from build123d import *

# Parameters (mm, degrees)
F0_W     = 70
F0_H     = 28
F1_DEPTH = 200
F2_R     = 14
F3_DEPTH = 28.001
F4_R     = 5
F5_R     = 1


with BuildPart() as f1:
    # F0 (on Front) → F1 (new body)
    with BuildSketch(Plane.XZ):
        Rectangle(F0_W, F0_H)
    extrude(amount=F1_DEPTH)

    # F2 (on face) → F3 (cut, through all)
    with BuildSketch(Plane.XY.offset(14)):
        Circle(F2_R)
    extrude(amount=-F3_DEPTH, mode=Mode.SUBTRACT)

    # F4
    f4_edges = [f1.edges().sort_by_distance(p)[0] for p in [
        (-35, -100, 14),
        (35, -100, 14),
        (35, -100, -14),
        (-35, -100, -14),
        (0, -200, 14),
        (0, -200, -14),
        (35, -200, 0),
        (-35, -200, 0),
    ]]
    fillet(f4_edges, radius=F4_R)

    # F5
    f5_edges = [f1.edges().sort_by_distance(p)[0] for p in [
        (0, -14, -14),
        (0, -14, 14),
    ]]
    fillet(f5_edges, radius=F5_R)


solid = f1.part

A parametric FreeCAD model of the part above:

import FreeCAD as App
import Part
import Sketcher

V = App.Vector


def edges_at(feature, points):
    """Names of the edges that pass closest to the given points."""
    edges = feature.Shape.Edges
    near = lambda p: min(range(len(edges)), key=lambda i: edges[i].distToShape(Part.Vertex(*p))[0])
    return sorted({f"Edge{near(p) + 1}" for p in points})


def add_polygon(sketch, points):
    """Adds a closed chain of lines whose ends are joined by coincident constraints."""
    first, n = sketch.GeometryCount, len(points)
    for a, b in zip(points, points[1:] + points[:1]):
        sketch.addGeometry(Part.LineSegment(App.Vector(*a, 0), App.Vector(*b, 0)), False)
    for i in range(n):
        sketch.addConstraint(Sketcher.Constraint("Coincident", first + i, 2, first + (i + 1) % n, 1))

doc = App.newDocument("Part")
body = doc.addObject("PartDesign::Body", "Body")

# Sketch on XZ plane
sketch1 = body.newObject("Sketcher::SketchObject", "Sketch")
sketch1.AttachmentSupport = (doc.getObject("XZ_Plane"), [""])
sketch1.MapMode = "FlatFace"
add_polygon(sketch1, [(-35, 14), (-35, -14), (35, -14), (35, 14)])  # lines 0-3
sketch1.addConstraint(Sketcher.Constraint("Vertical", 0))
sketch1.addConstraint(Sketcher.Constraint("Horizontal", 1))
sketch1.addConstraint(Sketcher.Constraint("Vertical", 2))
sketch1.addConstraint(Sketcher.Constraint("Horizontal", 3))
sketch1.addConstraint(Sketcher.Constraint("Symmetric", 0, 2, 2, 2, -1, 1))
sketch1.addConstraint(Sketcher.Constraint("DistanceX", 1, 1, 1, 2, 70.0))
sketch1.addConstraint(Sketcher.Constraint("DistanceY", 0, 2, 0, 1, 28.0))
pad1 = body.newObject("PartDesign::Pad", "Pad")
pad1.Profile = sketch1
pad1.Length = 200

# Sketch on XY plane
sketch2 = body.newObject("Sketcher::SketchObject", "Sketch001")
sketch2.AttachmentSupport = (doc.getObject("XY_Plane"), [""])
sketch2.MapMode = "FlatFace"
sketch2.AttachmentOffset = App.Placement(V(0, 0, 14), App.Rotation())
sketch2.addGeometry(Part.Circle(V(0, 0, 0), V(0, 0, 1), 14), False)
sketch2.addConstraint(Sketcher.Constraint("Coincident", 0, 3, -1, 1))
sketch2.addConstraint(Sketcher.Constraint("Diameter", 0, 28.0))
pocket1 = body.newObject("PartDesign::Pocket", "Pocket")
pocket1.Profile = sketch2
pocket1.Type = "ThroughAll"
doc.recompute()

fillet = body.newObject("PartDesign::Fillet", "Fillet")
fillet.Base = (pocket1, edges_at(pocket1, [
    (-35, -100, 14),
    (35, -100, 14),
    (35, -100, -14),
    (-35, -100, -14),
    (0, -200, 14),
    (0, -200, -14),
    (35, -200, 0),
    (-35, -200, 0),
]))
fillet.Radius = 5
doc.recompute()

fillet2 = body.newObject("PartDesign::Fillet", "Fillet001")
fillet2.Base = (fillet, edges_at(fillet, [(0, -14, -14), (0, -14, 14)]))
fillet2.Radius = 1

doc.recompute()
